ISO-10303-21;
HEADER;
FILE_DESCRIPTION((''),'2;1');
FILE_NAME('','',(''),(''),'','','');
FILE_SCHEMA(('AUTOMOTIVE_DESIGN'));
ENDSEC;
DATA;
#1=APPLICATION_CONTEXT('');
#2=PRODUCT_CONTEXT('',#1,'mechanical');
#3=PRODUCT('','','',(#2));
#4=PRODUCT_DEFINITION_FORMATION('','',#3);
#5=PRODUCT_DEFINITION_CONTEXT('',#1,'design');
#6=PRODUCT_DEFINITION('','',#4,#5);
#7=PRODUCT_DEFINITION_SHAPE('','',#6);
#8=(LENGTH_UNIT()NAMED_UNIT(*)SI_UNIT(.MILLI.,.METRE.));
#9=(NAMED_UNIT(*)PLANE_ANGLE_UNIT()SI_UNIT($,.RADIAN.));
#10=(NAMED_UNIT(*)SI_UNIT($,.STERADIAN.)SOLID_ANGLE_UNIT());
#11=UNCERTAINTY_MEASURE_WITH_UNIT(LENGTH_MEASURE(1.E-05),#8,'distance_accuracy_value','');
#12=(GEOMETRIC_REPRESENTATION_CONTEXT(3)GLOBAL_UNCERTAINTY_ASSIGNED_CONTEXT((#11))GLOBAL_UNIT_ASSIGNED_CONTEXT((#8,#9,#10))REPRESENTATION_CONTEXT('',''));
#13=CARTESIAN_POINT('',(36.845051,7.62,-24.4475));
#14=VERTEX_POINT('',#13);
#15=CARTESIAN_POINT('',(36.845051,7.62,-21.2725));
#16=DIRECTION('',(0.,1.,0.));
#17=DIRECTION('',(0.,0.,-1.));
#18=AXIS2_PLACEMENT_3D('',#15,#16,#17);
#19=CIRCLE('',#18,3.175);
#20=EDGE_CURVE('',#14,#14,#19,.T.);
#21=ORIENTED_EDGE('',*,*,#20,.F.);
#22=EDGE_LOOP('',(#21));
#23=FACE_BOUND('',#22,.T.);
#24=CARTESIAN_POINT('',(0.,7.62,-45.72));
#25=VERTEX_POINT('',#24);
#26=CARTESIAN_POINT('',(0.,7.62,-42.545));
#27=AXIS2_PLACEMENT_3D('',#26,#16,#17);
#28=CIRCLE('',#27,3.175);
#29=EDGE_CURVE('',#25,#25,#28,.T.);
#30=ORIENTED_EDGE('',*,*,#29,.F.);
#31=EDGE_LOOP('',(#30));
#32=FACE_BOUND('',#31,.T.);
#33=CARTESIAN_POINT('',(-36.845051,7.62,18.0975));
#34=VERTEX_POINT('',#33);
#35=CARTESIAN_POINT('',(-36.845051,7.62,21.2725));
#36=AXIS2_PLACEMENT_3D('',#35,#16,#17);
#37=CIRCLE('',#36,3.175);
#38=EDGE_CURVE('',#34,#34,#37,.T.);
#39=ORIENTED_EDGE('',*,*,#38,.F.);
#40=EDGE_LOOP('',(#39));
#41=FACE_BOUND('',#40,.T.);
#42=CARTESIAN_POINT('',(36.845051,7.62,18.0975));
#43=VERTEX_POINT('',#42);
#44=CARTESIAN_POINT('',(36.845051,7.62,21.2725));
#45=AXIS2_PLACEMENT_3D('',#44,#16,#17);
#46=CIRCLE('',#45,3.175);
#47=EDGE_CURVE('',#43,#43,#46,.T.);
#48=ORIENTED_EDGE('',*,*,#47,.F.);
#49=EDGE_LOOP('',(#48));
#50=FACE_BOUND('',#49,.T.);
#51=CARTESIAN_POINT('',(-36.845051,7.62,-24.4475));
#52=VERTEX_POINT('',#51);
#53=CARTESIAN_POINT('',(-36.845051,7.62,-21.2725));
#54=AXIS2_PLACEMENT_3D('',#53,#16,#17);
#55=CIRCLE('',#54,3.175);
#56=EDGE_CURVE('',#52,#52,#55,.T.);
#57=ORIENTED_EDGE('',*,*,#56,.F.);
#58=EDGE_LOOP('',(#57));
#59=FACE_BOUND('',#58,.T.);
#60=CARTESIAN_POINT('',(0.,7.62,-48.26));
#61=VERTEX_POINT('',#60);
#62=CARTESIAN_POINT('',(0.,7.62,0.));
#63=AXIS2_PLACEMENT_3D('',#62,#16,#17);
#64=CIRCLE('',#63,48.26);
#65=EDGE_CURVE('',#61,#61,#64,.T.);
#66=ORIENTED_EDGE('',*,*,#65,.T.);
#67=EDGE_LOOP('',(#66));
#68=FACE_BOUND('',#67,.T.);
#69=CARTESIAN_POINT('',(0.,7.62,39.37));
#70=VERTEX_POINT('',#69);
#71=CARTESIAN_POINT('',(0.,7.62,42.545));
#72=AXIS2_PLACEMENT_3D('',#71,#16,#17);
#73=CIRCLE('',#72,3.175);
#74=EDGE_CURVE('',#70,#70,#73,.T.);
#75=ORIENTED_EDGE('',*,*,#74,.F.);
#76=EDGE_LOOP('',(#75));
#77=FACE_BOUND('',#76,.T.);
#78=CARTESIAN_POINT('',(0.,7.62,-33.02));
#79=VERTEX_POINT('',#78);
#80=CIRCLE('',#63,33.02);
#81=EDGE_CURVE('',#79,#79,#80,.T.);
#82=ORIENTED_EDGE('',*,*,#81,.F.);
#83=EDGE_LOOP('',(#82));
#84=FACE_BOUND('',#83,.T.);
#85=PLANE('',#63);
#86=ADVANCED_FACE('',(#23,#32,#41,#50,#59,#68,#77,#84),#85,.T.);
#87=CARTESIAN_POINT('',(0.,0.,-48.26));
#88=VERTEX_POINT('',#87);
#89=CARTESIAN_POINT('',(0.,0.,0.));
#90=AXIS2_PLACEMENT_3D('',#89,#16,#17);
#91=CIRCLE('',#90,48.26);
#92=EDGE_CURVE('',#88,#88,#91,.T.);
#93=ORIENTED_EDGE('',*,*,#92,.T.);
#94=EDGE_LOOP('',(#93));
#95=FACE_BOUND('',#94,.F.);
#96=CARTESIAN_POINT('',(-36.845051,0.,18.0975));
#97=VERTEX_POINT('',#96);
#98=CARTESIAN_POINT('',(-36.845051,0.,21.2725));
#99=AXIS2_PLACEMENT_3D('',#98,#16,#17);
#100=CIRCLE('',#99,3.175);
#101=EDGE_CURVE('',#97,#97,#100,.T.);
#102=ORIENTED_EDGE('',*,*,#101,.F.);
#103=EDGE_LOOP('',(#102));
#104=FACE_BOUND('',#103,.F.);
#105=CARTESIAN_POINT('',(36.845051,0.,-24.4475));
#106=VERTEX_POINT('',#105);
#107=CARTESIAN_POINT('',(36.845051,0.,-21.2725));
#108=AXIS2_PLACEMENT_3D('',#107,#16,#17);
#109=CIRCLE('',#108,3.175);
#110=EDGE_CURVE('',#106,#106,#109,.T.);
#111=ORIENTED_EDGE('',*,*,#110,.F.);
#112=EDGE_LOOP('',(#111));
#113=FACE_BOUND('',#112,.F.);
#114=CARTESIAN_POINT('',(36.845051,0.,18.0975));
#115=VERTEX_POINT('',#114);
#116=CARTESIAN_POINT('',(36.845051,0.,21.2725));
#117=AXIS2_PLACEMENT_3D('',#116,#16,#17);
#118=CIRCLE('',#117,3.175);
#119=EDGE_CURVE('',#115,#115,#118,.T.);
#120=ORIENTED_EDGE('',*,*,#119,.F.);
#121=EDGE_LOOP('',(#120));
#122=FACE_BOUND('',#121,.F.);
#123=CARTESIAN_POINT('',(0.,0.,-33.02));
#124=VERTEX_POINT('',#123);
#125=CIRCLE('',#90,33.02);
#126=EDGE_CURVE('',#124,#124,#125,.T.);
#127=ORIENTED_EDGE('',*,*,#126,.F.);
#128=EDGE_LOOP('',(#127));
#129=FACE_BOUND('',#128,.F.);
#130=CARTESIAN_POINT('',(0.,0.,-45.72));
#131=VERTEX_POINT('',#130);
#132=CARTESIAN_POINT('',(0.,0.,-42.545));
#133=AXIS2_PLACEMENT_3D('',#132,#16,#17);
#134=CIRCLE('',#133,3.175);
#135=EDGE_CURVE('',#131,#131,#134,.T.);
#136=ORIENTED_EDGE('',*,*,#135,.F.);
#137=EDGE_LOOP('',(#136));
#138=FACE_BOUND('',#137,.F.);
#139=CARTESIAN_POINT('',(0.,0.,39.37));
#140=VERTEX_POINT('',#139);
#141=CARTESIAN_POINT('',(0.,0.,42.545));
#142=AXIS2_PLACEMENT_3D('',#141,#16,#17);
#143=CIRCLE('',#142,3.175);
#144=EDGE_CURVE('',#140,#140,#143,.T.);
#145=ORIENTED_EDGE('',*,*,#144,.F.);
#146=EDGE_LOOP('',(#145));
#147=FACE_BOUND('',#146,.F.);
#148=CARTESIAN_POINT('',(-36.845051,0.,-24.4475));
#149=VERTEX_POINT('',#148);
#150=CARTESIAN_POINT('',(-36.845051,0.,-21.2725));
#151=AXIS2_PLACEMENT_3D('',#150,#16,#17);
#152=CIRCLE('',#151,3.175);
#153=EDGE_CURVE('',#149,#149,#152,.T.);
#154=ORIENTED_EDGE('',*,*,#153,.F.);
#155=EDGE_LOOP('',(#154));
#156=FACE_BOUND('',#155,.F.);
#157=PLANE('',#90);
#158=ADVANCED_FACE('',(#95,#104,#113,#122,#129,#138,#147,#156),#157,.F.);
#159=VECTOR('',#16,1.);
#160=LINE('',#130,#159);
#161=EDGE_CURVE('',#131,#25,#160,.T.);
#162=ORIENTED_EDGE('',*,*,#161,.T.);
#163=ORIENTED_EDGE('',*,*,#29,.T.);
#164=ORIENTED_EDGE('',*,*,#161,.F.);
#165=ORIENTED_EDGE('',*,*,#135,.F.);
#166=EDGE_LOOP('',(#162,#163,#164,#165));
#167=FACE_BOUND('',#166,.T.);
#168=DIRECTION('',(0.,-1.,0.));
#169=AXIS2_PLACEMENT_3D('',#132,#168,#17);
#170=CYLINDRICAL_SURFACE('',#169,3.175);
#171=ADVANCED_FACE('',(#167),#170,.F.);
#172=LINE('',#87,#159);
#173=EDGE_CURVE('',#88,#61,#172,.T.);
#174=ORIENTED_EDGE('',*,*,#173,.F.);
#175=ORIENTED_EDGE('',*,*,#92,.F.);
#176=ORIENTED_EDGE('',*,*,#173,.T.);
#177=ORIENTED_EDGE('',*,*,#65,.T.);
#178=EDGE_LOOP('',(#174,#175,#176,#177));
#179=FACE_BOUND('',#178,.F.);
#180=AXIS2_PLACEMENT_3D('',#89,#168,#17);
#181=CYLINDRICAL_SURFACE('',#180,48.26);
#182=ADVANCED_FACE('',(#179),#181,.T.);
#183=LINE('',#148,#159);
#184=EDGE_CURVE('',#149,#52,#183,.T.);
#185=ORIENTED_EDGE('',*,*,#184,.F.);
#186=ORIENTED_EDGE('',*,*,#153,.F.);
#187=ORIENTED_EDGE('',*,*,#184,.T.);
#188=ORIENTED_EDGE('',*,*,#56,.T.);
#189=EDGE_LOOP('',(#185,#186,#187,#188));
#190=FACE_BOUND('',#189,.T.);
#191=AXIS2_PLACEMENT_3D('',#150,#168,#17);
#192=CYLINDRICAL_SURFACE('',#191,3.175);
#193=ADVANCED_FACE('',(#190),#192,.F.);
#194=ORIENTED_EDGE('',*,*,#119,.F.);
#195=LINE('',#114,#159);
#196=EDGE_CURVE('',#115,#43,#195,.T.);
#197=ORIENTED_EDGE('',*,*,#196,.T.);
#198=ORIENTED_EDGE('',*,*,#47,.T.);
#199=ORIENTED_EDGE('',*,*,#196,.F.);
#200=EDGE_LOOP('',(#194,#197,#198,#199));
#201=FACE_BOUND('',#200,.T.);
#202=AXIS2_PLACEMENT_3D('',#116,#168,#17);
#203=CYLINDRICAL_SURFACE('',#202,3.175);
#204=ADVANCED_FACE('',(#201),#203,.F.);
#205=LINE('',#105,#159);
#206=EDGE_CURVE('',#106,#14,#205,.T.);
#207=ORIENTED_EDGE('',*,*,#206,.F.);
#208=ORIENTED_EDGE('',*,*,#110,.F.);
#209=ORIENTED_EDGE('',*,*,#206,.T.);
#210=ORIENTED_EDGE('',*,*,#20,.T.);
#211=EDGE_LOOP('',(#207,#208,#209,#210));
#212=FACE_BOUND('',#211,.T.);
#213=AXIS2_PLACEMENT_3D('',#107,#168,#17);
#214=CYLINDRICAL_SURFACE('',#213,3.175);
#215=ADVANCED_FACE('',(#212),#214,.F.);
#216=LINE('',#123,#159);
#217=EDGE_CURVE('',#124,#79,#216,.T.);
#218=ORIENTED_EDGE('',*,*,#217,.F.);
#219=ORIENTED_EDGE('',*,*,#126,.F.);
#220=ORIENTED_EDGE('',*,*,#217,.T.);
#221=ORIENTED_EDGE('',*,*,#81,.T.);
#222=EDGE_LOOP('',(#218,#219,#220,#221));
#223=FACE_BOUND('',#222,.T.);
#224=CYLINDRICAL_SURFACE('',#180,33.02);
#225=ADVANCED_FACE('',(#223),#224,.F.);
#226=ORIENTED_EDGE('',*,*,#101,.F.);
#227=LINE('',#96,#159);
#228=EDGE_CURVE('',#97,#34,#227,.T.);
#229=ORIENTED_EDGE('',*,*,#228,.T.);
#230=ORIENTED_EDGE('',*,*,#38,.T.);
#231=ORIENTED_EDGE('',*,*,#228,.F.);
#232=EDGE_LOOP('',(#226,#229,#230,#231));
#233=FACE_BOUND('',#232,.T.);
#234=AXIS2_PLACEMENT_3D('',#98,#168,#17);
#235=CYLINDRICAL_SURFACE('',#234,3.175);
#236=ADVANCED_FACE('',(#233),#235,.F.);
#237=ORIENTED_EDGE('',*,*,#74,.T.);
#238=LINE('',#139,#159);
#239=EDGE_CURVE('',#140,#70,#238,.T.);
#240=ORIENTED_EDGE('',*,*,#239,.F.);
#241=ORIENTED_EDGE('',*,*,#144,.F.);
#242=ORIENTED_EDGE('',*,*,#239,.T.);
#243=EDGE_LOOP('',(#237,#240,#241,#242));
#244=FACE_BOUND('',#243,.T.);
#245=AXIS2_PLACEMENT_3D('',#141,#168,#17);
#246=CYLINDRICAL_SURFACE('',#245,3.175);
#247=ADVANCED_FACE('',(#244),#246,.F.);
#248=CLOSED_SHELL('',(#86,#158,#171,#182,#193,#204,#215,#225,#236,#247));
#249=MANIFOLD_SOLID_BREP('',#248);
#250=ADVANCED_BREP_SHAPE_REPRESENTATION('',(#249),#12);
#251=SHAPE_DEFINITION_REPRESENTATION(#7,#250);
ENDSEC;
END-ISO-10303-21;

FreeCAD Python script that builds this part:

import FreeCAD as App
import Part
import Sketcher
Q = App.Units.Quantity

doc = App.newDocument("Part")
body = doc.addObject("PartDesign::Body", "Body")

# Sketch on XZ plane
sketch1 = body.newObject("Sketcher::SketchObject", "Sketch")
sketch1.AttachmentSupport = (doc.getObject("XZ_Plane"), [""])
sketch1.MapMode = "FlatFace"
sketch1.addGeometry(Part.Circle(App.Vector(0, 0, 0), App.Vector(0, 0, 1), 48.3), False)
sketch1.addGeometry(Part.Circle(App.Vector(36.8, 21.3, 0), App.Vector(0, 0, 1), 3.2), False)
sketch1.addGeometry(Part.Circle(App.Vector(0, 42.5, 0), App.Vector(0, 0, 1), 3.2), False)
sketch1.addGeometry(Part.Circle(App.Vector(36.8, -21.3, 0), App.Vector(0, 0, 1), 3.2), False)
sketch1.addGeometry(Part.Circle(App.Vector(0, 0, 0), App.Vector(0, 0, 1), 33), False)
sketch1.addGeometry(Part.Circle(App.Vector(-36.8, 21.3, 0), App.Vector(0, 0, 1), 3.2), False)
sketch1.addGeometry(Part.Circle(App.Vector(0, -42.5, 0), App.Vector(0, 0, 1), 3.2), False)
sketch1.addGeometry(Part.Circle(App.Vector(-36.8, -21.3, 0), App.Vector(0, 0, 1), 3.2), False)
sketch1.addConstraint(Sketcher.Constraint("Coincident", 0, 3, -1, 1))
sketch1.addConstraint(Sketcher.Constraint("Coincident", 4, 3, -1, 1))
sketch1.addConstraint(Sketcher.Constraint("Equal", 1, 2))
sketch1.addConstraint(Sketcher.Constraint("Equal", 2, 3))
sketch1.addConstraint(Sketcher.Constraint("Equal", 3, 5))
sketch1.addConstraint(Sketcher.Constraint("Equal", 5, 6))
sketch1.addConstraint(Sketcher.Constraint("Equal", 6, 7))
sketch1.addConstraint(Sketcher.Constraint("Symmetric", 3, 3, 5, 3, -1, 1))
sketch1.addConstraint(Sketcher.Constraint("Symmetric", 2, 3, 6, 3, -1, 1))
sketch1.addConstraint(Sketcher.Constraint("Symmetric", 1, 3, 7, 3, -1, 1))
sketch1.addConstraint(Sketcher.Constraint("Symmetric", 1, 3, 5, 3, -2))
sketch1.addConstraint(Sketcher.Constraint("PointOnObject", 2, 3, -2))
sketch1.addConstraint(Sketcher.Constraint("Diameter", 0, Q("3.8 in")))
sketch1.addConstraint(Sketcher.Constraint("Diameter", 4, Q("2.6 in")))
sketch1.addConstraint(Sketcher.Constraint("Diameter", 1, Q("0.25 in")))
sketch1.addConstraint(Sketcher.Constraint("DistanceY", -1, 1, 2, 3, Q("1.675 in")))
sketch1.addConstraint(Sketcher.Constraint("DistanceY", 3, 3, 1, 3, Q("1.675 in")))
sketch1.addConstraint(Sketcher.Constraint("DistanceX", 5, 3, 1, 3, Q("73.690102 mm")))
pad1 = body.newObject("PartDesign::Pad", "Pad")
pad1.Profile = sketch1
pad1.Length = Q("0.3 in")
pad1.Reversed = True

doc.recompute()
